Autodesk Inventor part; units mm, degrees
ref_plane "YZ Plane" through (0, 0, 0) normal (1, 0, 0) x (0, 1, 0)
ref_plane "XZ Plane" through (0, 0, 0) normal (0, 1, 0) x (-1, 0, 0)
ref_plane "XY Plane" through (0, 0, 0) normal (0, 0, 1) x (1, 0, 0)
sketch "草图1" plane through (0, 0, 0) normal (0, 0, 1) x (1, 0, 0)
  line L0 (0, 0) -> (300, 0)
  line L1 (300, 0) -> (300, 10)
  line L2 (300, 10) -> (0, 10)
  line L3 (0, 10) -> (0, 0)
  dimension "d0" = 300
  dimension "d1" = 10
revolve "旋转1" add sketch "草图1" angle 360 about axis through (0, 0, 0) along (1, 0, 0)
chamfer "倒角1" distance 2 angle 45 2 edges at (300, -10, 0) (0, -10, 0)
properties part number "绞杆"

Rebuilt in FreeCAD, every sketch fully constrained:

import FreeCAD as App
import Part
import Sketcher

V = App.Vector
Q = App.Units.Quantity


def edges_at(feature, points):
    """Names of the edges that pass closest to the given points."""
    edges = feature.Shape.Edges
    near = lambda p: min(range(len(edges)), key=lambda i: edges[i].distToShape(Part.Vertex(*p))[0])
    return sorted({f"Edge{near(p) + 1}" for p in points})

doc = App.newDocument("Part")
body = doc.addObject("PartDesign::Body", "Body")

sketch1 = doc.addObject("Sketcher::SketchObject", "Sketch")
body.addObject(sketch1)
sketch1.AttachmentSupport = (doc.XY_Plane, [""])
sketch1.MapMode = "FlatFace"
sketch1.addGeometry([
    Part.LineSegment(V(0, 10, 0), V(0, 0, 0)),
    Part.LineSegment(V(0, 0, 0), V(300, 0, 0)),
    Part.LineSegment(V(300, 0, 0), V(300, 10, 0)),
    Part.LineSegment(V(300, 10, 0), V(0, 10, 0)),
], False)
sketch1.addConstraint([
    Sketcher.Constraint("Coincident", 0, 2, 1, 1),
    Sketcher.Constraint("Coincident", 1, 2, 2, 1),
    Sketcher.Constraint("Coincident", 2, 2, 3, 1),
    Sketcher.Constraint("Coincident", 3, 2, 0, 1),
    Sketcher.Constraint("Vertical", 0),
    Sketcher.Constraint("Horizontal", 1),
    Sketcher.Constraint("Vertical", 2),
    Sketcher.Constraint("Horizontal", 3),
    Sketcher.Constraint("Coincident", 0, 2, -1, 1),
    Sketcher.Constraint("DistanceX", 1, 1, 1, 2, Q("300 mm")),
    Sketcher.Constraint("DistanceY", 0, 2, 0, 1, Q("10 mm")),
])
revolution = doc.addObject("PartDesign::Revolution", "Revolution")
body.addObject(revolution)
revolution.Profile = sketch1
revolution.ReferenceAxis = (sketch1, ["H_Axis"])
revolution.Angle = 360
doc.recompute()

chamfer = doc.addObject("PartDesign::Chamfer", "Chamfer")
body.addObject(chamfer)
chamfer.Base = (revolution, edges_at(revolution, [(300, -10, 0), (0, -10, 0)]))
chamfer.Size = 2

doc.recompute()
